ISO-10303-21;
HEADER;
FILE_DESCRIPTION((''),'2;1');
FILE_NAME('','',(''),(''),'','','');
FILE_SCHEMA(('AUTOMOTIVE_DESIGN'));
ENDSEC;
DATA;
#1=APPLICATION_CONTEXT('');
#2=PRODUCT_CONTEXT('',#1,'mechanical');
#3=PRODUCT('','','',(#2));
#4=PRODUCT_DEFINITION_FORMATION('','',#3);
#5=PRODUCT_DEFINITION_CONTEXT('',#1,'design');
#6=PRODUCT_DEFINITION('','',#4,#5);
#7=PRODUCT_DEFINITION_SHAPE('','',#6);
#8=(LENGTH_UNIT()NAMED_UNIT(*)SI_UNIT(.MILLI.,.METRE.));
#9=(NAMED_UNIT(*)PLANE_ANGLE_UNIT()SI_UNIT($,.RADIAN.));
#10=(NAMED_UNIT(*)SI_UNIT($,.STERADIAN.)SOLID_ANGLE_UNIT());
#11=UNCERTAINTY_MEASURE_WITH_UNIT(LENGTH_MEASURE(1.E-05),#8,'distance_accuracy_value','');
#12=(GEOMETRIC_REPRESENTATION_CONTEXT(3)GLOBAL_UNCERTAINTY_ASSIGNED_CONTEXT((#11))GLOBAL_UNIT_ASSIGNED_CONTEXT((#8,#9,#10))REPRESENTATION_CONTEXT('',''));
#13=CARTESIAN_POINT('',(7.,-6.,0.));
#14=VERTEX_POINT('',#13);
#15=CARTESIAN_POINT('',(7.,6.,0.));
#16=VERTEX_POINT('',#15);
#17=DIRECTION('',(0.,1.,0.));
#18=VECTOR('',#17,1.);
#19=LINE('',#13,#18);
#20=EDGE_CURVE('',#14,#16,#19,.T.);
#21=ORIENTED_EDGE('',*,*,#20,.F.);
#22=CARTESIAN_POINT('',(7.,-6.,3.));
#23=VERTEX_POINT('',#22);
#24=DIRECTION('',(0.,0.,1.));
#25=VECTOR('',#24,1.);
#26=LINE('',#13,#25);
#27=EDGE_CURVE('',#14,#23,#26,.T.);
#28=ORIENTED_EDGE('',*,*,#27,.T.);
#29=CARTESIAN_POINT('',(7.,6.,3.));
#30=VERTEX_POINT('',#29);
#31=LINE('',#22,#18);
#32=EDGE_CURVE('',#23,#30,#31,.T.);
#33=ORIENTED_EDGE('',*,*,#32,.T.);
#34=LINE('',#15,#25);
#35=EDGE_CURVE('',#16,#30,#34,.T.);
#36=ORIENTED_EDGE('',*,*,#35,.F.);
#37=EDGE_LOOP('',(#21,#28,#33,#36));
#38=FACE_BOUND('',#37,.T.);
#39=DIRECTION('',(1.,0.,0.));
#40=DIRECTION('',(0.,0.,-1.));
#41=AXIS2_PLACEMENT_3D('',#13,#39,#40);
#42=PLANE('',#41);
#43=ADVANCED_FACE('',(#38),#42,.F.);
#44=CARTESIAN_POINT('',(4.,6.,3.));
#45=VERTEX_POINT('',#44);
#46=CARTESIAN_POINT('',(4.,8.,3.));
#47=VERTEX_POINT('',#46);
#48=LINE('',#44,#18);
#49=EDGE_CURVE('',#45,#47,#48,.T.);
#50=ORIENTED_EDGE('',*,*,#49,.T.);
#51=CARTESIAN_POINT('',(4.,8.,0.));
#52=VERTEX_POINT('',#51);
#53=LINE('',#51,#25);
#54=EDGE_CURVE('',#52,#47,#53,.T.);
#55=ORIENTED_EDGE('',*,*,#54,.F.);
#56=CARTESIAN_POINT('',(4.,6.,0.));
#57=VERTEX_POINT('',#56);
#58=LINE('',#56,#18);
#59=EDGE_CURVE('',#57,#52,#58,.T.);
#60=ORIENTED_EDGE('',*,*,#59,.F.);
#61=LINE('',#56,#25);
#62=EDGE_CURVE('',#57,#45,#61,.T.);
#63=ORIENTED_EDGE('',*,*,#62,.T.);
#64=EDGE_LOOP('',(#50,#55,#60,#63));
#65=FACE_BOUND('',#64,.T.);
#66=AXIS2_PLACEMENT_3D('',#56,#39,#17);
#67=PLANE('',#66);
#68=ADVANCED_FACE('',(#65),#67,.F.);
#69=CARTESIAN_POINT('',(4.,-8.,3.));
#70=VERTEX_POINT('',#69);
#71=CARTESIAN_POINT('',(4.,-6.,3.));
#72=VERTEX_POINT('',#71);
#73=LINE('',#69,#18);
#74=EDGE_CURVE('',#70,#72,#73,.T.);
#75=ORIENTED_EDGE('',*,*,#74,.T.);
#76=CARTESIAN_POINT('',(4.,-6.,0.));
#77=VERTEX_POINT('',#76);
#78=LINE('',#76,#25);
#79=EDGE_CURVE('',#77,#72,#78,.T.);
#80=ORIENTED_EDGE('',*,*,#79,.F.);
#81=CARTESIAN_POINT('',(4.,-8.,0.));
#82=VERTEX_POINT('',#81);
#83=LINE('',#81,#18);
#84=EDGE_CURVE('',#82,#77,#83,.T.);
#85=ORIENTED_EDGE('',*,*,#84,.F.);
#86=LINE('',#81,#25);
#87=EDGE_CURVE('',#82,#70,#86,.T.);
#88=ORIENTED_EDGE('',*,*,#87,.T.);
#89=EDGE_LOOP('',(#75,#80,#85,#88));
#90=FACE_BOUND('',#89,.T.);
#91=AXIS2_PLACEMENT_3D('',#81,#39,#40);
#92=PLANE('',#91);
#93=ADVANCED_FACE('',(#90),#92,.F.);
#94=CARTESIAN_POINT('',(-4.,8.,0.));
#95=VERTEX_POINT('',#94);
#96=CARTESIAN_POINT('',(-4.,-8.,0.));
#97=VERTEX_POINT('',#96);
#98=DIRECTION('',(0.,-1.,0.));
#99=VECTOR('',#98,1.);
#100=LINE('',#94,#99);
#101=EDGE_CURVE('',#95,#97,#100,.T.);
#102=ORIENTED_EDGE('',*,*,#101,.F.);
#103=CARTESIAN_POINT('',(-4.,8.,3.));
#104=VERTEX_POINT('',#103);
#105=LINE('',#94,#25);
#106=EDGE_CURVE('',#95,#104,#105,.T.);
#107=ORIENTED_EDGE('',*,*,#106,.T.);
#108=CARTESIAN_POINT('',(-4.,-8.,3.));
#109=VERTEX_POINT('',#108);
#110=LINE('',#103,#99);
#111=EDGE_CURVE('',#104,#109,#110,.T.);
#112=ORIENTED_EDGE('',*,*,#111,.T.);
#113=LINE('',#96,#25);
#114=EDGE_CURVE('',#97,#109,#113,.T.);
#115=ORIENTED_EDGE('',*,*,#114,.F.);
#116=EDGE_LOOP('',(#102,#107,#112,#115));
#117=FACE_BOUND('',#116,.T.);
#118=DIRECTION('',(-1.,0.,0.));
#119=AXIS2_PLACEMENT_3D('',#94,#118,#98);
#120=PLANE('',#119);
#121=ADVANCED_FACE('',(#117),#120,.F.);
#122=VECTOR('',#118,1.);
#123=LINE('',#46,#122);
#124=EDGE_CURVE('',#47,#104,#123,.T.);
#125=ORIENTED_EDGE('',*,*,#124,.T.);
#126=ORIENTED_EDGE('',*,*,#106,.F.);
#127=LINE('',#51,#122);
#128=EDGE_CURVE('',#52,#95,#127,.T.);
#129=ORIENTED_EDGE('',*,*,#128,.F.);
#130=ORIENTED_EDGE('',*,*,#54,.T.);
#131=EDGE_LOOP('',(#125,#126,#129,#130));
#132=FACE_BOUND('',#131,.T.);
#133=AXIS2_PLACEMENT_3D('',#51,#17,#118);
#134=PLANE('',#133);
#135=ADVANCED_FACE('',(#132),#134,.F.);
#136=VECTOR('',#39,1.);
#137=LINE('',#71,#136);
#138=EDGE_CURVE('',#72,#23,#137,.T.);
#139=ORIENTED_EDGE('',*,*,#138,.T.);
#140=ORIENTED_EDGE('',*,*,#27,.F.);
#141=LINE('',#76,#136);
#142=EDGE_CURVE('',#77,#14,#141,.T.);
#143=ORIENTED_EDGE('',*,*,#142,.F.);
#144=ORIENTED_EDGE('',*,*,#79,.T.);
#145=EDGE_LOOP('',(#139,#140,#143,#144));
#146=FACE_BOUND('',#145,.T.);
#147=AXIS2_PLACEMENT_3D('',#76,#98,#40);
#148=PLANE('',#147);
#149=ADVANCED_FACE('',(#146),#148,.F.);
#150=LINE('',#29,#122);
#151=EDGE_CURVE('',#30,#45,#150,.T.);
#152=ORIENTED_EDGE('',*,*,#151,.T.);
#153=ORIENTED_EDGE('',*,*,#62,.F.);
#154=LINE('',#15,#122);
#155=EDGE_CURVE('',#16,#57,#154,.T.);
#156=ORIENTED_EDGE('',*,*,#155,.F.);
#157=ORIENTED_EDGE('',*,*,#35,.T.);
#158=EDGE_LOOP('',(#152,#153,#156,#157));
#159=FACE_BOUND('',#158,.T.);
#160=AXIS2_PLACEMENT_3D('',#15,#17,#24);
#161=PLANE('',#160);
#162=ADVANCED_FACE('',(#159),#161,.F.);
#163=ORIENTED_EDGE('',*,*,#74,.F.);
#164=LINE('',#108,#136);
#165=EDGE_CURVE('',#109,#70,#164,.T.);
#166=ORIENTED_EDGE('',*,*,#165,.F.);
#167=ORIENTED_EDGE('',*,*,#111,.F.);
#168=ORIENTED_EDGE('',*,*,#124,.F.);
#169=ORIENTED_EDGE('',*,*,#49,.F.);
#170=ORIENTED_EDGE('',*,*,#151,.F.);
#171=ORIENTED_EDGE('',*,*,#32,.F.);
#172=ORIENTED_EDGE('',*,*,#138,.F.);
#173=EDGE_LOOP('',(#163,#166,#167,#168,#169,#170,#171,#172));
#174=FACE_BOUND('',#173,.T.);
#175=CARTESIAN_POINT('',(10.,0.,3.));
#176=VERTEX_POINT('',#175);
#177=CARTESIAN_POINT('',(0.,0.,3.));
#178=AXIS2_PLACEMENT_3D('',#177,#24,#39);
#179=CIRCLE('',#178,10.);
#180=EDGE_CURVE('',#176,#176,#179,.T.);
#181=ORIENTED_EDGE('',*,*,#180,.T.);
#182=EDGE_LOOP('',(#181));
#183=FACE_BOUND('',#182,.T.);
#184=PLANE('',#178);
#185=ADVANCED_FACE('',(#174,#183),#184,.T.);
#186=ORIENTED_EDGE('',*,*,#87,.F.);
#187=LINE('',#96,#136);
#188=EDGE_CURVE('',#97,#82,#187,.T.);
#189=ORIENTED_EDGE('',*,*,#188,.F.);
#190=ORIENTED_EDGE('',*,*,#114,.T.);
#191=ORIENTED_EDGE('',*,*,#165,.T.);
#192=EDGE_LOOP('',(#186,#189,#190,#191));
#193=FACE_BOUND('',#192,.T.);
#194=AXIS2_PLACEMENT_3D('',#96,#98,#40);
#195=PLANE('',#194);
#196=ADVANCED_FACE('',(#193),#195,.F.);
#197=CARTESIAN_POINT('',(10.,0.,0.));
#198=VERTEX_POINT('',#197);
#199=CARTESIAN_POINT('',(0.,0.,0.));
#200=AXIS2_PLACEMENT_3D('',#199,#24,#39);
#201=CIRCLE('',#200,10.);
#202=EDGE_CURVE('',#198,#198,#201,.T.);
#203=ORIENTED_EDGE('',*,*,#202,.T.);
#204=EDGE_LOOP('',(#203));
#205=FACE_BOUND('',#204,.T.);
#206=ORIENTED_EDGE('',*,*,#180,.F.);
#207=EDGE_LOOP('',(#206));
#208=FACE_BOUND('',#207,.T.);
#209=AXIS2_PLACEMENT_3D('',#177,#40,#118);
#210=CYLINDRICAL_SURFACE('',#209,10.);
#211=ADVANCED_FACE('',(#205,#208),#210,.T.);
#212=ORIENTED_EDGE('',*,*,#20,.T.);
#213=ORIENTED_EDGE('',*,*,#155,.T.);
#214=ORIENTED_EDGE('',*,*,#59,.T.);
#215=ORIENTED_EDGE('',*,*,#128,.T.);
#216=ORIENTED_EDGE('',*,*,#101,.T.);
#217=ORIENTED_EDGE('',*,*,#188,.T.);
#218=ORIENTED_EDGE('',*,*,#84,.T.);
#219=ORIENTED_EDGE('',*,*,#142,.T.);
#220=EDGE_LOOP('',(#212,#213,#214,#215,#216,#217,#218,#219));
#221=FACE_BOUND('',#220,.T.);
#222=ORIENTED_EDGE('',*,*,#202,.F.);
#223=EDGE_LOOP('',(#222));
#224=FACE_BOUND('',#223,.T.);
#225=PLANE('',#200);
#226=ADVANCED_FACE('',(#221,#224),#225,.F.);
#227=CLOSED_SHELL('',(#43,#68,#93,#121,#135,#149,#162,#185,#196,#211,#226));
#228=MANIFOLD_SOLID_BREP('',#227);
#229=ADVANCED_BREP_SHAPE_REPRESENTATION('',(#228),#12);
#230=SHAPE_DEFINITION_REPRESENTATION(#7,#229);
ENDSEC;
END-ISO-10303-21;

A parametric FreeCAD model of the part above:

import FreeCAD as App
import Part
import Sketcher
from FreeCAD import Vector
Q = App.Units.Quantity

doc = App.newDocument("Part")
body = doc.addObject("PartDesign::Body", "Body")

# Sketch on XY plane
sketch1 = body.newObject("Sketcher::SketchObject", "Sketch")
sketch1.AttachmentSupport = (doc.getObject("XY_Plane"), [""])
sketch1.MapMode = "FlatFace"
sketch1.addGeometry(Part.Circle(Vector(0, 0, 0), Vector(0, 0, 1), 10), False)
sketch1.addConstraint([
    Sketcher.Constraint("Coincident", 0, 3, -1, 1),
    Sketcher.Constraint("Diameter", 0, Q("20 mm")),
])
pad1 = body.newObject("PartDesign::Pad", "Pad")
pad1.Profile = sketch1
pad1.Length = 3

# Sketch on XY plane
sketch2 = body.newObject("Sketcher::SketchObject", "Sketch001")
sketch2.AttachmentSupport = (doc.getObject("XY_Plane"), [""])
sketch2.MapMode = "FlatFace"
sketch2.AttachmentOffset = App.Placement(Vector(0, 0, 3), App.Rotation())
sketch2.addGeometry([
    Part.LineSegment(Vector(-4, 8, 0), Vector(-4, -8, 0)),  # 0
    Part.LineSegment(Vector(-4, -8, 0), Vector(4, -8, 0)),  # 1
    Part.LineSegment(Vector(4, -8, 0), Vector(4, -6, 0)),  # 2
    Part.LineSegment(Vector(4, -6, 0), Vector(7, -6, 0)),  # 3
    Part.LineSegment(Vector(7, -6, 0), Vector(7, 6, 0)),  # 4
    Part.LineSegment(Vector(7, 6, 0), Vector(4, 6, 0)),  # 5
    Part.LineSegment(Vector(4, 6, 0), Vector(4, 8, 0)),  # 6
    Part.LineSegment(Vector(4, 8, 0), Vector(-4, 8, 0)),  # 7
], False)
sketch2.addConstraint([
    Sketcher.Constraint("Coincident", 0, 2, 1, 1),
    Sketcher.Constraint("Coincident", 1, 2, 2, 1),
    Sketcher.Constraint("Coincident", 2, 2, 3, 1),
    Sketcher.Constraint("Coincident", 3, 2, 4, 1),
    Sketcher.Constraint("Coincident", 4, 2, 5, 1),
    Sketcher.Constraint("Coincident", 5, 2, 6, 1),
    Sketcher.Constraint("Coincident", 6, 2, 7, 1),
    Sketcher.Constraint("Coincident", 7, 2, 0, 1),
    Sketcher.Constraint("Vertical", 0),
    Sketcher.Constraint("Horizontal", 1),
    Sketcher.Constraint("Vertical", 2),
    Sketcher.Constraint("Horizontal", 3),
    Sketcher.Constraint("Vertical", 4),
    Sketcher.Constraint("Horizontal", 5),
    Sketcher.Constraint("Vertical", 6),
    Sketcher.Constraint("Horizontal", 7),
    Sketcher.Constraint("Symmetric", 0, 2, 6, 2, -1, 1),
    Sketcher.Constraint("Symmetric", 2, 2, 5, 2, -1),
    Sketcher.Constraint("DistanceX", 1, 1, 1, 2, Q("8 mm")),
    Sketcher.Constraint("DistanceX", 3, 1, 3, 2, Q("3 mm")),
    Sketcher.Constraint("DistanceY", 0, 2, 0, 1, Q("16 mm")),
    Sketcher.Constraint("DistanceY", 2, 1, 2, 2, Q("2 mm")),
])
pocket1 = body.newObject("PartDesign::Pocket", "Pocket")
pocket1.Profile = sketch2
pocket1.Type = "ThroughAll"

doc.recompute()
